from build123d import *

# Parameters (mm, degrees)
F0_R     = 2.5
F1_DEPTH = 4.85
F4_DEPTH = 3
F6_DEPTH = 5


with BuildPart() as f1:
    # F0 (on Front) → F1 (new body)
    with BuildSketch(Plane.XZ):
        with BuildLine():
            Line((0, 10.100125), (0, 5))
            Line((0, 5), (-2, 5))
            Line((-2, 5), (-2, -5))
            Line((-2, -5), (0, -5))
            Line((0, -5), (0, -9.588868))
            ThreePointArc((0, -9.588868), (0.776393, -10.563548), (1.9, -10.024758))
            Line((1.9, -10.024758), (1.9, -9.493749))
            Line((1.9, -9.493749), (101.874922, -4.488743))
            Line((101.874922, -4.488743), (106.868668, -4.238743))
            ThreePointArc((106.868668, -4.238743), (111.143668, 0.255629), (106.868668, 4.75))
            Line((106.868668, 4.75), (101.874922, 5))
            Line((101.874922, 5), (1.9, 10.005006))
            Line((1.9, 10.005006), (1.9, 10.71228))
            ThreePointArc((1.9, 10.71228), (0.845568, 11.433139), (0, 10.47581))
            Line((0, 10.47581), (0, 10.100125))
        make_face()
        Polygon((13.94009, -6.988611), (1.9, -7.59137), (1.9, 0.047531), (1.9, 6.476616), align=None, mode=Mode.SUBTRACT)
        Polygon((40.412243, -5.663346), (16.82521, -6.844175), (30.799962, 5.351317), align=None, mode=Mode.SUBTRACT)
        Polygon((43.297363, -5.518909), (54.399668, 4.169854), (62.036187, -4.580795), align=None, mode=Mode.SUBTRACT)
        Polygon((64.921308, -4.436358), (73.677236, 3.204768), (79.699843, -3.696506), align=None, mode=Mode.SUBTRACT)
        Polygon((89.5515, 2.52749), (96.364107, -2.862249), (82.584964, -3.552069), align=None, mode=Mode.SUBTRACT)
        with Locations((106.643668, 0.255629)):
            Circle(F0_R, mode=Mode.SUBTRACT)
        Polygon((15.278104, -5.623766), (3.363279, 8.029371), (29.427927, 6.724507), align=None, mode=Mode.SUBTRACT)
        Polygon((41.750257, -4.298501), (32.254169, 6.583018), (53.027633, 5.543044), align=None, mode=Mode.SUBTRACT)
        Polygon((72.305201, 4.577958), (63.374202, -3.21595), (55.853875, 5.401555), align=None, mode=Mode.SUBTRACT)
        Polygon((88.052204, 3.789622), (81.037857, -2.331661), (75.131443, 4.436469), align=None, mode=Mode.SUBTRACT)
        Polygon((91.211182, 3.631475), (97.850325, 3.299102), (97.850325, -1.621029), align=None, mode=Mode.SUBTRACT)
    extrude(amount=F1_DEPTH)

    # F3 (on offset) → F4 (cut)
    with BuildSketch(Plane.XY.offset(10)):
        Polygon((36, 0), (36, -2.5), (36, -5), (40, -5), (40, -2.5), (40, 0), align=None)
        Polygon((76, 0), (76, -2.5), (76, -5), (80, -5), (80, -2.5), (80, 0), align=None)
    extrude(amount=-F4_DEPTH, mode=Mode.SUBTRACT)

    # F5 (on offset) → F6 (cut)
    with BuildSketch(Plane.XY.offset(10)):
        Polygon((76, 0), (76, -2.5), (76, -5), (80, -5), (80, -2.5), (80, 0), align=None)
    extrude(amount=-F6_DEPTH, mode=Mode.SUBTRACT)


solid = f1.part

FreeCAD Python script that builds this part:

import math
import FreeCAD as App
import Part
import Sketcher
from FreeCAD import Vector
Q = App.Units.Quantity


def add_polygon(sketch, points):
    """Adds a closed chain of lines whose ends are joined by coincident constraints."""
    first, n = sketch.GeometryCount, len(points)
    for a, b in zip(points, points[1:] + points[:1]):
        sketch.addGeometry(Part.LineSegment(App.Vector(*a, 0), App.Vector(*b, 0)), False)
    for i in range(n):
        sketch.addConstraint(Sketcher.Constraint("Coincident", first + i, 2, first + (i + 1) % n, 1))

doc = App.newDocument("Part")
params = doc.addObject("Spreadsheet::Sheet", "Params")
for row, (alias, value) in enumerate([
    ("sketch1_diameter", "5 mm"),
    ("sketch1_radius", "1 mm"),
    ("sketch1_radius2", "4.5 mm"),
    ("sketch1_width", "2 mm"),
    ("sketch1_height", "10 mm"),
    ("pad1_length", "4.85 mm"),
    ("sketch2_width", "4 mm"),
    ("sketch2_height", "5 mm"),
    ("pocket1_length", "3 mm"),
    ("sketch3_width", "4 mm"),
    ("sketch3_height", "5 mm"),
    ("pocket2_length", "5 mm"),
], start=1):
    params.set(f"A{row}", alias)
    params.set(f"B{row}", "=" + value)
    params.setAlias(f"B{row}", alias)

body = doc.addObject("PartDesign::Body", "Body")

# Sketch on XZ plane
sketch1 = doc.addObject("Sketcher::SketchObject", "Sketch")
body.addObject(sketch1)
sketch1.AttachmentSupport = (doc.XZ_Plane, [""])
sketch1.MapMode = "FlatFace"
sketch1.addGeometry(Part.LineSegment(Vector(0, 5, 0), Vector(-2, 5, 0)), False)  # 0
sketch1.addGeometry(Part.LineSegment(Vector(-2, 5, 0), Vector(-2, -5, 0)), False)  # 1
sketch1.addGeometry(Part.LineSegment(Vector(-2, -5, 0), Vector(0, -5, 0)), False)  # 2
sketch1.addGeometry(Part.LineSegment(Vector(0, -5, 0), Vector(0, -9.6, 0)), False)  # 3
sketch1.addGeometry(Part.ArcOfCircle(Part.Circle(Vector(1, -9.6, 0), Vector(0, 0, 1), 1), math.radians(180), math.radians(334)), False)  # 4
sketch1.addGeometry(Part.LineSegment(Vector(1.9, -10, 0), Vector(1.9, -9.5, 0)), False)  # 5
sketch1.addGeometry(Part.LineSegment(Vector(1.9, -9.5, 0), Vector(101.9, -4.5, 0)), False)  # 6
sketch1.addGeometry(Part.LineSegment(Vector(101.9, -4.5, 0), Vector(106.9, -4.2, 0)), False)  # 7
sketch1.addGeometry(Part.ArcOfCircle(Part.Circle(Vector(106.6, 0.3, 0), Vector(0, 0, 1), 4.5), math.radians(-87), math.radians(87)), False)  # 8
sketch1.addGeometry(Part.LineSegment(Vector(106.9, 4.8, 0), Vector(101.9, 5, 0)), False)  # 9
sketch1.addGeometry(Part.LineSegment(Vector(101.9, 5, 0), Vector(1.9, 10, 0)), False)  # 10
sketch1.addGeometry(Part.LineSegment(Vector(1.9, 10, 0), Vector(1.9, 10.7, 0)), False)  # 11
sketch1.addGeometry(Part.ArcOfCircle(Part.Circle(Vector(1, 10.5, 0), Vector(0, 0, 1), 1), math.radians(14), math.radians(180)), False)  # 12
sketch1.addGeometry(Part.LineSegment(Vector(0, 10.5, 0), Vector(0, 5, 0)), False)  # 13
add_polygon(sketch1, [(1.9, 6.5), (13.9, -7), (1.9, -7.6)])  # lines 14-16
add_polygon(sketch1, [(30.8, 5.4), (40.4, -5.7), (16.8, -6.8)])  # lines 17-19
add_polygon(sketch1, [(62, -4.6), (43.3, -5.5), (54.4, 4.2)])  # lines 20-22
add_polygon(sketch1, [(79.7, -3.7), (64.9, -4.4), (73.7, 3.2)])  # lines 23-25
add_polygon(sketch1, [(82.6, -3.6), (89.6, 2.5), (96.4, -2.9)])  # lines 26-28
add_polygon(sketch1, [(29.4, 6.7), (15.3, -5.6), (3.4, 8)])  # lines 29-31
add_polygon(sketch1, [(53, 5.5), (41.8, -4.3), (32.3, 6.6)])  # lines 32-34
add_polygon(sketch1, [(55.9, 5.4), (72.3, 4.6), (63.4, -3.2)])  # lines 35-37
add_polygon(sketch1, [(75.1, 4.4), (88.1, 3.8), (81, -2.3)])  # lines 38-40
add_polygon(sketch1, [(97.9, -1.6), (91.2, 3.6), (97.9, 3.3)])  # lines 41-43
sketch1.addGeometry(Part.Circle(Vector(106.6, 0.3, 0), Vector(0, 0, 1), 2.5), False)  # 44
sketch1.addConstraint(Sketcher.Constraint("Coincident", 0, 2, 1, 1))
sketch1.addConstraint(Sketcher.Constraint("Coincident", 1, 2, 2, 1))
sketch1.addConstraint(Sketcher.Constraint("Coincident", 2, 2, 3, 1))
sketch1.addConstraint(Sketcher.Constraint("Tangent", 3, 2, 4, 1))
sketch1.addConstraint(Sketcher.Constraint("Coincident", 4, 2, 5, 1))
sketch1.addConstraint(Sketcher.Constraint("Coincident", 5, 2, 6, 1))
sketch1.addConstraint(Sketcher.Constraint("Coincident", 6, 2, 7, 1))
sketch1.addConstraint(Sketcher.Constraint("Tangent", 7, 2, 8, 1))
sketch1.addConstraint(Sketcher.Constraint("Tangent", 8, 2, 9, 1))
sketch1.addConstraint(Sketcher.Constraint("Coincident", 9, 2, 10, 1))
sketch1.addConstraint(Sketcher.Constraint("Coincident", 10, 2, 11, 1))
sketch1.addConstraint(Sketcher.Constraint("Coincident", 11, 2, 12, 1))
sketch1.addConstraint(Sketcher.Constraint("Tangent", 12, 2, 13, 1))
sketch1.addConstraint(Sketcher.Constraint("Coincident", 13, 2, 0, 1))
sketch1.addConstraint(Sketcher.Constraint("Horizontal", 0))
sketch1.addConstraint(Sketcher.Constraint("Vertical", 1))
sketch1.addConstraint(Sketcher.Constraint("Horizontal", 2))
sketch1.addConstraint(Sketcher.Constraint("Vertical", 3))
sketch1.addConstraint(Sketcher.Constraint("Vertical", 5))
sketch1.addConstraint(Sketcher.Constraint("Vertical", 11))
sketch1.addConstraint(Sketcher.Constraint("Vertical", 13))
sketch1.addConstraint(Sketcher.Constraint("Vertical", 16))
sketch1.addConstraint(Sketcher.Constraint("Vertical", 43))
sketch1.addConstraint(Sketcher.Constraint("Coincident", 44, 3, 8, 3))
sketch1.addConstraint(Sketcher.Constraint("Symmetric", 2, 2, 13, 2, -1, 1))
sketch1.addConstraint(Sketcher.Constraint("PointOnObject", 2, 2, -2))
sketch1.addConstraint(Sketcher.Constraint("Parallel", 6, 7))
sketch1.addConstraint(Sketcher.Constraint("Parallel", 9, 10))
sketch1.addConstraint(Sketcher.Constraint("Parallel", 7, 15))
sketch1.addConstraint(Sketcher.Constraint("Parallel", 15, 18))
sketch1.addConstraint(Sketcher.Constraint("Perpendicular", 17, 19))
sketch1.addConstraint(Sketcher.Constraint("Parallel", 18, 20))
sketch1.addConstraint(Sketcher.Constraint("Parallel", 19, 21))
sketch1.addConstraint(Sketcher.Constraint("Perpendicular", 21, 22))
sketch1.addConstraint(Sketcher.Constraint("Parallel", 20, 23))
sketch1.addConstraint(Sketcher.Constraint("Perpendicular", 22, 24))
sketch1.addConstraint(Sketcher.Constraint("Perpendicular", 24, 25))
sketch1.addConstraint(Sketcher.Constraint("Perpendicular", 25, 26))
sketch1.addConstraint(Sketcher.Constraint("Parallel", 23, 28))
sketch1.addConstraint(Sketcher.Constraint("Parallel", 26, 29))
sketch1.addConstraint(Sketcher.Constraint("Perpendicular", 29, 30))
sketch1.addConstraint(Sketcher.Constraint("Parallel", 10, 31))
sketch1.addConstraint(Sketcher.Constraint("Perpendicular", 30, 32))
sketch1.addConstraint(Sketcher.Constraint("Perpendicular", 32, 33))
sketch1.addConstraint(Sketcher.Constraint("Parallel", 31, 34))
sketch1.addConstraint(Sketcher.Constraint("Parallel", 34, 35))
sketch1.addConstraint(Sketcher.Constraint("Perpendicular", 33, 36))
sketch1.addConstraint(Sketcher.Constraint("Perpendicular", 36, 37))
sketch1.addConstraint(Sketcher.Constraint("Parallel", 35, 38))
sketch1.addConstraint(Sketcher.Constraint("Perpendicular", 37, 39))
sketch1.addConstraint(Sketcher.Constraint("Perpendicular", 39, 40))
sketch1.addConstraint(Sketcher.Constraint("Parallel", 27, 41))
sketch1.addConstraint(Sketcher.Constraint("Parallel", 38, 42))
sketch1.addConstraint(Sketcher.Constraint("Horizontal", 0, 2, 9, 2))
sketch1.addConstraint(Sketcher.Constraint("Vertical", 7, 2, 8, 2))
sketch1.addConstraint(Sketcher.Constraint("Vertical", 6, 2, 9, 2))
sketch1.addConstraint(Sketcher.Constraint("Vertical", 5, 2, 10, 2))
sketch1.addConstraint(Sketcher.Constraint("Vertical", 11, 2, 15, 2))
sketch1.addConstraint(Sketcher.Constraint("Diameter", 44, Q("5 mm")))
sketch1.addConstraint(Sketcher.Constraint("Radius", 4, Q("1 mm")))
sketch1.addConstraint(Sketcher.Constraint("Radius", 8, Q("4.5 mm")))
sketch1.addConstraint(Sketcher.Constraint("DistanceX", 0, 2, 0, 1, Q("2 mm")))
sketch1.addConstraint(Sketcher.Constraint("DistanceY", 1, 2, 1, 1, Q("10 mm")))
sketch1.addConstraint(Sketcher.Constraint("Distance", 7, Q("5 mm")))
sketch1.addConstraint(Sketcher.Constraint("DistanceX", -1, 1, 4, 2, Q("1.9 mm")))
sketch1.addConstraint(Sketcher.Constraint("DistanceY", -1, 1, 8, 2, Q("4.75 mm")))
sketch1.addConstraint(Sketcher.Constraint("Radius", 12, Q("0.964715 mm")))
sketch1.addConstraint(Sketcher.Constraint("DistanceX", 36, 2, 35, 2, Q("8.930999 mm")))
sketch1.addConstraint(Sketcher.Constraint("Distance", 28, Q("13.796399 mm")))
sketch1.addConstraint(Sketcher.Constraint("DistanceY", 5, 1, 5, 2, Q("0.531009 mm")))
sketch1.addConstraint(Sketcher.Constraint("DistanceY", 13, 2, 13, 1, Q("5.47581 mm")))
sketch1.addConstraint(Sketcher.Constraint("DistanceY", 43, 2, 43, 1, Q("4.920131 mm")))
sketch1.addConstraint(Sketcher.Constraint("DistanceX", -1, 1, 26, 2, Q("89.5515 mm")))
sketch1.addConstraint(Sketcher.Constraint("DistanceY", 32, 2, -1, 1, Q("4.298501 mm")))
sketch1.addConstraint(Sketcher.Constraint("DistanceX", -1, 1, 35, 2, Q("72.305201 mm")))
sketch1.addConstraint(Sketcher.Constraint("DistanceY", -1, 1, 42, 2, Q("3.299102 mm")))
sketch1.addConstraint(Sketcher.Constraint("DistanceY", 4, 3, 15, 2, Q("1.997499 mm")))
sketch1.addConstraint(Sketcher.Constraint("DistanceY", 19, 2, 16, 2, Q("1.125299 mm")))
sketch1.addConstraint(Sketcher.Constraint("DistanceX", 19, 2, 20, 2, Q("12.497401 mm")))
sketch1.addConstraint(Sketcher.Constraint("DistanceY", 14, 2, 20, 2, Q("1.469702 mm")))
sketch1.addConstraint(Sketcher.Constraint("DistanceY", 17, 2, 21, 2, Q("9.8332 mm")))
sketch1.addConstraint(Sketcher.Constraint("DistanceY", 19, 2, 33, 2, Q("1.231701 mm")))
sketch1.addConstraint(Sketcher.Constraint("DistanceY", 21, 2, 37, 2, Q("1.231701 mm")))
sketch1.addConstraint(Sketcher.Constraint("DistanceY", 24, 2, 40, 2, Q("1.231701 mm")))
sketch1.addConstraint(Sketcher.Constraint("DistanceX", 40, 2, 25, 2, Q("4.5684 mm")))
sketch1.addConstraint(Sketcher.Constraint("Distance", 15, Q("12.055168 mm")))
sketch1.addConstraint(Sketcher.Constraint("Distance", 20, Q("18.762292 mm")))
sketch1.addConstraint(Sketcher.Constraint("Distance", 25, Q("9.15966 mm")))
sketch1.addConstraint(Sketcher.Constraint("Distance", 26, Q("9.246278 mm")))
sketch1.addConstraint(Sketcher.Constraint("Distance", 31, Q("26.09729 mm")))
sketch1.addConstraint(Sketcher.Constraint("Distance", 34, Q("20.79948 mm")))
sketch1.addConstraint(Sketcher.Constraint("Distance", 35, Q("16.471929 mm")))
sketch1.addConstraint(Sketcher.Constraint("DistanceY", 3, 2, 3, 1, Q("4.588868 mm")))
sketch1.addConstraint(Sketcher.Constraint("DistanceX", -1, 1, 18, 2, Q("16.82521 mm")))
sketch1.addConstraint(Sketcher.Constraint("DistanceY", 23, 2, -1, 1, Q("4.436358 mm")))
sketch1.addConstraint(Sketcher.Constraint("DistanceY", -1, 1, 26, 2, Q("2.52749 mm")))
sketch1.addConstraint(Sketcher.Constraint("DistanceX", -1, 1, 30, 2, Q("3.363279 mm")))
sketch1.addConstraint(Sketcher.Constraint("DistanceY", -1, 1, 30, 2, Q("8.029371 mm")))
sketch1.addConstraint(Sketcher.Constraint("DistanceX", -1, 1, 33, 2, Q("32.254169 mm")))
sketch1.addConstraint(Sketcher.Constraint("DistanceY", -1, 1, 38, 2, Q("3.789622 mm")))
sketch1.addConstraint(Sketcher.Constraint("DistanceX", -1, 1, 41, 2, Q("91.211182 mm")))
sketch1.addConstraint(Sketcher.Constraint("DistanceX", 22, 2, 23, 2, Q("2.885121 mm")))
sketch1.setExpression("Constraints[88]", "Params.sketch1_diameter")
sketch1.setExpression("Constraints[89]", "Params.sketch1_radius")
sketch1.setExpression("Constraints[90]", "Params.sketch1_radius2")
sketch1.setExpression("Constraints[91]", "Params.sketch1_width")
sketch1.setExpression("Constraints[92]", "Params.sketch1_height")
pad1 = doc.addObject("PartDesign::Pad", "Pad")
body.addObject(pad1)
pad1.Profile = sketch1
pad1.setExpression("Length", "Params.pad1_length")

# Sketch on XY plane
sketch2 = doc.addObject("Sketcher::SketchObject", "Sketch001")
body.addObject(sketch2)
sketch2.AttachmentSupport = (doc.XY_Plane, [""])
sketch2.MapMode = "FlatFace"
sketch2.AttachmentOffset = App.Placement(Vector(0, 0, 10), App.Rotation())
add_polygon(sketch2, [(36, 0), (36, -5), (40, -5), (40, 0)])  # lines 0-3
add_polygon(sketch2, [(76, 0), (76, -5), (80, -5), (80, 0)])  # lines 4-7
sketch2.addConstraint(Sketcher.Constraint("Vertical", 0))
sketch2.addConstraint(Sketcher.Constraint("Horizontal", 1))
sketch2.addConstraint(Sketcher.Constraint("Vertical", 2))
sketch2.addConstraint(Sketcher.Constraint("Horizontal", 3))
sketch2.addConstraint(Sketcher.Constraint("Vertical", 4))
sketch2.addConstraint(Sketcher.Constraint("Horizontal", 5))
sketch2.addConstraint(Sketcher.Constraint("Vertical", 6))
sketch2.addConstraint(Sketcher.Constraint("Horizontal", 7))
sketch2.addConstraint(Sketcher.Constraint("PointOnObject", 2, 2, -1))
sketch2.addConstraint(Sketcher.Constraint("PointOnObject", 6, 2, -1))
sketch2.addConstraint(Sketcher.Constraint("Horizontal", 1, 2, 4, 2))
sketch2.addConstraint(Sketcher.Constraint("Equal", 3, 5))
sketch2.addConstraint(Sketcher.Constraint("DistanceX", 1, 1, 1, 2, Q("4 mm")))
sketch2.addConstraint(Sketcher.Constraint("DistanceY", 0, 2, 0, 1, Q("5 mm")))
sketch2.addConstraint(Sketcher.Constraint("DistanceX", -1, 1, 0, 2, Q("36 mm")))
sketch2.addConstraint(Sketcher.Constraint("DistanceX", -1, 1, 4, 2, Q("76 mm")))
sketch2.setExpression("Constraints[20]", "Params.sketch2_width")
sketch2.setExpression("Constraints[21]", "Params.sketch2_height")
pocket1 = doc.addObject("PartDesign::Pocket", "Pocket")
body.addObject(pocket1)
pocket1.Profile = sketch2
pocket1.setExpression("Length", "Params.pocket1_length")

# Sketch on XY plane
sketch3 = doc.addObject("Sketcher::SketchObject", "Sketch002")
body.addObject(sketch3)
sketch3.AttachmentSupport = (doc.XY_Plane, [""])
sketch3.MapMode = "FlatFace"
sketch3.AttachmentOffset = App.Placement(Vector(0, 0, 10), App.Rotation())
add_polygon(sketch3, [(76, 0), (76, -5), (80, -5), (80, 0)])  # lines 0-3
sketch3.addConstraint(Sketcher.Constraint("Vertical", 0))
sketch3.addConstraint(Sketcher.Constraint("Horizontal", 1))
sketch3.addConstraint(Sketcher.Constraint("Vertical", 2))
sketch3.addConstraint(Sketcher.Constraint("Horizontal", 3))
sketch3.addConstraint(Sketcher.Constraint("PointOnObject", 2, 2, -1))
sketch3.addConstraint(Sketcher.Constraint("DistanceX", 1, 1, 1, 2, Q("4 mm")))
sketch3.addConstraint(Sketcher.Constraint("DistanceY", 0, 2, 0, 1, Q("5 mm")))
sketch3.addConstraint(Sketcher.Constraint("DistanceX", -1, 1, 0, 2, Q("76 mm")))
sketch3.setExpression("Constraints[9]", "Params.sketch3_width")
sketch3.setExpression("Constraints[10]", "Params.sketch3_height")
pocket2 = doc.addObject("PartDesign::Pocket", "Pocket001")
body.addObject(pocket2)
pocket2.Profile = sketch3
pocket2.setExpression("Length", "Params.pocket2_length")

doc.recompute()
